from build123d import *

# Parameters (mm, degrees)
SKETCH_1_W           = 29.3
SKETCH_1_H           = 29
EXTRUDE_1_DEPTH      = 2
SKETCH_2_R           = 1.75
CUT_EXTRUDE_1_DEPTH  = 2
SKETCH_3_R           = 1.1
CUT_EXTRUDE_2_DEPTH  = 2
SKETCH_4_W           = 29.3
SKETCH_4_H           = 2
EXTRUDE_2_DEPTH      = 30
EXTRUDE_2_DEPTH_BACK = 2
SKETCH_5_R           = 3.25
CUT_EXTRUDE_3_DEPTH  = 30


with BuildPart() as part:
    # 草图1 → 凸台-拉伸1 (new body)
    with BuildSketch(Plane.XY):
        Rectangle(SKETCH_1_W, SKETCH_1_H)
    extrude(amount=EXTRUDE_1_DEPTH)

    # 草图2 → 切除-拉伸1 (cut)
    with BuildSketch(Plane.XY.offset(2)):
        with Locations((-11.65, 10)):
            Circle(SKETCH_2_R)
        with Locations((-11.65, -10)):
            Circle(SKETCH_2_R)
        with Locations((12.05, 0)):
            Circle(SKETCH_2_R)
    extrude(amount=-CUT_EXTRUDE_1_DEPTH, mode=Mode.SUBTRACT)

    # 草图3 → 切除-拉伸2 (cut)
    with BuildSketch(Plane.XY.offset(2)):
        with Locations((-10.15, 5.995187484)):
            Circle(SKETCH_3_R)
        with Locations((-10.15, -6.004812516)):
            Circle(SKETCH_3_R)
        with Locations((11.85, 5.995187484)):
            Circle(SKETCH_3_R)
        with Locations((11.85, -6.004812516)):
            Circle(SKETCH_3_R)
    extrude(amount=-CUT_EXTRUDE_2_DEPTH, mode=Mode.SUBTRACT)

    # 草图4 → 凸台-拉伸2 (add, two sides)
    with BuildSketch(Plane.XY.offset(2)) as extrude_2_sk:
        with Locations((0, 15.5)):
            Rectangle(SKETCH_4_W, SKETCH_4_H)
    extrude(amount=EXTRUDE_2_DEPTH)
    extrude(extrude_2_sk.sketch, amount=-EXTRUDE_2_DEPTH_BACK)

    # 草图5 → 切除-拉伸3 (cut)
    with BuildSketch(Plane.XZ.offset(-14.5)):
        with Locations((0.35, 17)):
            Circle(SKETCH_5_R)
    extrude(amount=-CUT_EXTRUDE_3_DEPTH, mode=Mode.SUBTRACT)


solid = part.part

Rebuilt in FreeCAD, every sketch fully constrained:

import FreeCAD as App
import Part
import Sketcher

V = App.Vector
Q = App.Units.Quantity


def add_polygon(sketch, points):
    """Adds a closed chain of lines whose ends are joined by coincident constraints."""
    first, n = sketch.GeometryCount, len(points)
    for a, b in zip(points, points[1:] + points[:1]):
        sketch.addGeometry(Part.LineSegment(App.Vector(*a, 0), App.Vector(*b, 0)), False)
    for i in range(n):
        sketch.addConstraint(Sketcher.Constraint("Coincident", first + i, 2, first + (i + 1) % n, 1))

doc = App.newDocument("Part")
body = doc.addObject("PartDesign::Body", "Body")

sketch1 = body.newObject("Sketcher::SketchObject", "Sketch")
sketch1.AttachmentSupport = (doc.getObject("XY_Plane"), [""])
sketch1.MapMode = "FlatFace"
add_polygon(sketch1, [(-15, 14), (-15, -14), (15, -14), (15, 14)])
sketch1.addConstraint(Sketcher.Constraint("Vertical", 0))
sketch1.addConstraint(Sketcher.Constraint("Horizontal", 1))
sketch1.addConstraint(Sketcher.Constraint("Vertical", 2))
sketch1.addConstraint(Sketcher.Constraint("Horizontal", 3))
sketch1.addConstraint(Sketcher.Constraint("Symmetric", 0, 2, 2, 2, -1, 1))
sketch1.addConstraint(Sketcher.Constraint("DistanceY", 0, 2, 0, 1, Q("29 mm")))
sketch1.addConstraint(Sketcher.Constraint("DistanceX", 1, 1, 1, 2, Q("29.3 mm")))
pad1 = body.newObject("PartDesign::Pad", "Pad")
pad1.Profile = sketch1
pad1.Length = 2

sketch2 = body.newObject("Sketcher::SketchObject", "Sketch001")
sketch2.AttachmentSupport = (doc.getObject("XY_Plane"), [""])
sketch2.MapMode = "FlatFace"
sketch2.AttachmentOffset = App.Placement(V(0, 0, 2), App.Rotation())
sketch2.addGeometry(Part.Circle(V(-11.7, 10, 0), V(0, 0, 1), 1.8), False)
sketch2.addGeometry(Part.Circle(V(-11.7, -10, 0), V(0, 0, 1), 1.8), False)
sketch2.addGeometry(Part.Circle(V(12.1, 0, 0), V(0, 0, 1), 1.8), False)
sketch2.addConstraint(Sketcher.Constraint("Equal", 0, 1))
sketch2.addConstraint(Sketcher.Constraint("Equal", 1, 2))
sketch2.addConstraint(Sketcher.Constraint("Symmetric", 0, 3, 1, 3, -1))
sketch2.addConstraint(Sketcher.Constraint("PointOnObject", 2, 3, -1))
sketch2.addConstraint(Sketcher.Constraint("Diameter", 0, Q("3.5 mm")))
sketch2.addConstraint(Sketcher.Constraint("DistanceY", -1, 1, 0, 3, Q("10 mm")))
sketch2.addConstraint(Sketcher.Constraint("DistanceX", 0, 3, 2, 3, Q("23.7 mm")))
sketch2.addConstraint(Sketcher.Constraint("DistanceX", 0, 3, -1, 1, Q("11.65 mm")))
pocket1 = body.newObject("PartDesign::Pocket", "Pocket")
pocket1.Profile = sketch2
pocket1.Length = 2

sketch3 = body.newObject("Sketcher::SketchObject", "Sketch002")
sketch3.AttachmentSupport = (doc.getObject("XY_Plane"), [""])
sketch3.MapMode = "FlatFace"
sketch3.AttachmentOffset = App.Placement(V(0, 0, 2), App.Rotation())
sketch3.addGeometry(Part.Circle(V(-10.2, 6, 0), V(0, 0, 1), 1.1), False)
sketch3.addGeometry(Part.Circle(V(-10.2, -6, 0), V(0, 0, 1), 1.1), False)
sketch3.addGeometry(Part.Circle(V(11.8, 6, 0), V(0, 0, 1), 1.1), False)
sketch3.addGeometry(Part.Circle(V(11.8, -6, 0), V(0, 0, 1), 1.1), False)
sketch3.addConstraint(Sketcher.Constraint("Equal", 0, 1))
sketch3.addConstraint(Sketcher.Constraint("Equal", 1, 2))
sketch3.addConstraint(Sketcher.Constraint("Equal", 2, 3))
sketch3.addConstraint(Sketcher.Constraint("Horizontal", 0, 3, 2, 3))
sketch3.addConstraint(Sketcher.Constraint("Horizontal", 1, 3, 3, 3))
sketch3.addConstraint(Sketcher.Constraint("Vertical", 0, 3, 1, 3))
sketch3.addConstraint(Sketcher.Constraint("Vertical", 2, 3, 3, 3))
sketch3.addConstraint(Sketcher.Constraint("Diameter", 0, Q("2.2 mm")))
sketch3.addConstraint(Sketcher.Constraint("DistanceY", 1, 3, 0, 3, Q("12 mm")))
sketch3.addConstraint(Sketcher.Constraint("DistanceX", 0, 3, 2, 3, Q("22 mm")))
sketch3.addConstraint(Sketcher.Constraint("DistanceX", 0, 3, -1, 1, Q("10.15 mm")))
sketch3.addConstraint(Sketcher.Constraint("DistanceY", -1, 1, 0, 3, Q("5.995187 mm")))
pocket2 = body.newObject("PartDesign::Pocket", "Pocket001")
pocket2.Profile = sketch3
pocket2.Length = 2

sketch4 = body.newObject("Sketcher::SketchObject", "Sketch003")
sketch4.AttachmentSupport = (doc.getObject("XY_Plane"), [""])
sketch4.MapMode = "FlatFace"
sketch4.AttachmentOffset = App.Placement(V(0, 0, 2), App.Rotation())
add_polygon(sketch4, [(-14.7, 16.5), (-14.7, 14.5), (14.7, 14.5), (14.7, 16.5)])
sketch4.addConstraint(Sketcher.Constraint("Vertical", 0))
sketch4.addConstraint(Sketcher.Constraint("Horizontal", 1))
sketch4.addConstraint(Sketcher.Constraint("Vertical", 2))
sketch4.addConstraint(Sketcher.Constraint("Horizontal", 3))
sketch4.addConstraint(Sketcher.Constraint("DistanceY", 0, 2, 0, 1, Q("2 mm")))
sketch4.addConstraint(Sketcher.Constraint("DistanceX", 1, 1, 1, 2, Q("29.3 mm")))
sketch4.addConstraint(Sketcher.Constraint("DistanceY", -1, 1, 0, 2, Q("14.5 mm")))
sketch4.addConstraint(Sketcher.Constraint("DistanceX", 0, 2, -1, 1, Q("14.65 mm")))
pad2 = body.newObject("PartDesign::Pad", "Pad001")
pad2.Profile = sketch4
pad2.Type = "TwoLengths"
pad2.Length = 30
pad2.Length2 = 2

sketch5 = body.newObject("Sketcher::SketchObject", "Sketch004")
sketch5.AttachmentSupport = (doc.getObject("XZ_Plane"), [""])
sketch5.MapMode = "FlatFace"
sketch5.AttachmentOffset = App.Placement(V(0, 0, -14.5), App.Rotation())
sketch5.addGeometry(Part.Circle(V(0.3, 17, 0), V(0, 0, 1), 3.2), False)
sketch5.addConstraint(Sketcher.Constraint("Diameter", 0, Q("6.5 mm")))
sketch5.addConstraint(Sketcher.Constraint("DistanceY", -1, 1, 0, 3, Q("17 mm")))
sketch5.addConstraint(Sketcher.Constraint("DistanceX", -1, 1, 0, 3, Q("0.35 mm")))
pocket3 = body.newObject("PartDesign::Pocket", "Pocket002")
pocket3.Profile = sketch5
pocket3.Length = 30

doc.recompute()
